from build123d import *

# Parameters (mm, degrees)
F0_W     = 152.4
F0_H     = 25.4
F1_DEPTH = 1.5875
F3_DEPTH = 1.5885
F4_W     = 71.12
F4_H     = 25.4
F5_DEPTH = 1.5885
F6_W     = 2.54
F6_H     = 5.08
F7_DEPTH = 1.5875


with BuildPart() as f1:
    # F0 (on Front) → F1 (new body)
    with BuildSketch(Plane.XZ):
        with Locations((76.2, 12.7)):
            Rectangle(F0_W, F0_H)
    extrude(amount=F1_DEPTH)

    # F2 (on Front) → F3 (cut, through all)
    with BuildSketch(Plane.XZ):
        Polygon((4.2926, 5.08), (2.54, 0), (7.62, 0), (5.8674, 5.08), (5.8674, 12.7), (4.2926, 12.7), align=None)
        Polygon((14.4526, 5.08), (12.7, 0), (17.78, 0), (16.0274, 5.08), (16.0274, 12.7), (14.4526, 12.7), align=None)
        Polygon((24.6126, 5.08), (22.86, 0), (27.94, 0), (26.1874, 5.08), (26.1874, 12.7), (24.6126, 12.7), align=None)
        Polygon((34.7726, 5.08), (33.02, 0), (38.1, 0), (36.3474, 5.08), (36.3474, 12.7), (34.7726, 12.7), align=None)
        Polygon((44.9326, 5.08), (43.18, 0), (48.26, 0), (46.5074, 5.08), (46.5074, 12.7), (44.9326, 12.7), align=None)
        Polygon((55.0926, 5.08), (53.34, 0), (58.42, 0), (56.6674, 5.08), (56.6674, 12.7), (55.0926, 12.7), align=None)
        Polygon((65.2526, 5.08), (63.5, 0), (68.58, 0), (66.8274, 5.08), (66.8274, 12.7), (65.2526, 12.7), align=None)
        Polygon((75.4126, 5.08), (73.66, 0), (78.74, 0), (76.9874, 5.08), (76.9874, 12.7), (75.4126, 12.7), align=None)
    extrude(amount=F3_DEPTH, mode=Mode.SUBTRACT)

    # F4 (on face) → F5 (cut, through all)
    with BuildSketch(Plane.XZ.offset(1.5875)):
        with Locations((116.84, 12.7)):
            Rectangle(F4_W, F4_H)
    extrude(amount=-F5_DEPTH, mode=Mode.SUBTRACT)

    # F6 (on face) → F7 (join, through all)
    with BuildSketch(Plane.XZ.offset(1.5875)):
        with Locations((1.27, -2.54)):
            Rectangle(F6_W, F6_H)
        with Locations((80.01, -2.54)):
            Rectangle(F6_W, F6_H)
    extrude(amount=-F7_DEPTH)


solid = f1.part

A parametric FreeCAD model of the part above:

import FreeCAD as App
import Part
import Sketcher
Q = App.Units.Quantity

doc = App.newDocument("Part")
params = doc.addObject("Spreadsheet::Sheet", "Params")
for row, (alias, value) in enumerate([
    ("sketch1_width", "6 in"),
    ("sketch1_height", "1 in"),
    ("pad1_length", "0.0625 in"),
    ("sketch2_width", "0.2 in"),
    ("sketch2_height", "0.3 in"),
    ("sketch2_width2", "0.062 in"),
    ("sketch3_height", "1 in"),
    ("sketch3_width", "2.8 in"),
    ("sketch4_width", "0.1 in"),
    ("sketch4_height", "0.2 in"),
    ("pad2_length", "0.0625 in"),
], start=1):
    params.set(f"A{row}", alias)
    params.set(f"B{row}", "=" + value)
    params.setAlias(f"B{row}", alias)

body = doc.addObject("PartDesign::Body", "Body")

sketch1 = body.newObject("Sketcher::SketchObject", "Sketch")
sketch1.AttachmentSupport = (doc.getObject("XZ_Plane"), [""])
sketch1.MapMode = "FlatFace"
sketch1.addGeometry([
    Part.LineSegment(App.Vector(0, 25.4, 0), App.Vector(0, 0, 0)),
    Part.LineSegment(App.Vector(0, 0, 0), App.Vector(152.4, 0, 0)),
    Part.LineSegment(App.Vector(152.4, 0, 0), App.Vector(152.4, 25.4, 0)),
    Part.LineSegment(App.Vector(152.4, 25.4, 0), App.Vector(0, 25.4, 0)),
], False)
sketch1.addConstraint([
    Sketcher.Constraint("Coincident", 0, 2, 1, 1),
    Sketcher.Constraint("Coincident", 1, 2, 2, 1),
    Sketcher.Constraint("Coincident", 2, 2, 3, 1),
    Sketcher.Constraint("Coincident", 3, 2, 0, 1),
    Sketcher.Constraint("Vertical", 0),
    Sketcher.Constraint("Horizontal", 1),
    Sketcher.Constraint("Vertical", 2),
    Sketcher.Constraint("Horizontal", 3),
    Sketcher.Constraint("Coincident", 0, 2, -1, 1),
    Sketcher.Constraint("DistanceX", 1, 1, 1, 2, Q("6 in")),
    Sketcher.Constraint("DistanceY", 0, 2, 0, 1, Q("1 in")),
])
sketch1.setExpression("Constraints[9]", "Params.sketch1_width")
sketch1.setExpression("Constraints[10]", "Params.sketch1_height")
pad1 = body.newObject("PartDesign::Pad", "Pad")
pad1.Profile = sketch1
pad1.setExpression("Length", "Params.pad1_length")

sketch2 = body.newObject("Sketcher::SketchObject", "Sketch001")
sketch2.AttachmentSupport = (doc.getObject("XZ_Plane"), [""])
sketch2.MapMode = "FlatFace"
sketch2.addGeometry([
    Part.LineSegment(App.Vector(4.2926, 5.08, 0), App.Vector(2.54, 0, 0)),
    Part.LineSegment(App.Vector(2.54, 0, 0), App.Vector(7.62, 0, 0)),
    Part.LineSegment(App.Vector(7.62, 0, 0), App.Vector(5.8674, 5.08, 0)),
    Part.LineSegment(App.Vector(5.8674, 5.08, 0), App.Vector(5.8674, 12.7, 0)),
    Part.LineSegment(App.Vector(5.8674, 12.7, 0), App.Vector(4.2926, 12.7, 0)),
    Part.LineSegment(App.Vector(4.2926, 12.7, 0), App.Vector(4.2926, 5.08, 0)),
    Part.LineSegment(App.Vector(14.4526, 5.08, 0), App.Vector(12.7, 0, 0)),
    Part.LineSegment(App.Vector(12.7, 0, 0), App.Vector(17.78, 0, 0)),
    Part.LineSegment(App.Vector(17.78, 0, 0), App.Vector(16.0274, 5.08, 0)),
    Part.LineSegment(App.Vector(16.0274, 5.08, 0), App.Vector(16.0274, 12.7, 0)),
    Part.LineSegment(App.Vector(16.0274, 12.7, 0), App.Vector(14.4526, 12.7, 0)),
    Part.LineSegment(App.Vector(14.4526, 12.7, 0), App.Vector(14.4526, 5.08, 0)),
    Part.LineSegment(App.Vector(24.6126, 5.08, 0), App.Vector(22.86, 0, 0)),
    Part.LineSegment(App.Vector(22.86, 0, 0), App.Vector(27.94, 0, 0)),
    Part.LineSegment(App.Vector(27.94, 0, 0), App.Vector(26.1874, 5.08, 0)),
    Part.LineSegment(App.Vector(26.1874, 5.08, 0), App.Vector(26.1874, 12.7, 0)),
    Part.LineSegment(App.Vector(26.1874, 12.7, 0), App.Vector(24.6126, 12.7, 0)),
    Part.LineSegment(App.Vector(24.6126, 12.7, 0), App.Vector(24.6126, 5.08, 0)),
    Part.LineSegment(App.Vector(34.7726, 5.08, 0), App.Vector(33.02, 0, 0)),
    Part.LineSegment(App.Vector(33.02, 0, 0), App.Vector(38.1, 0, 0)),
    Part.LineSegment(App.Vector(38.1, 0, 0), App.Vector(36.3474, 5.08, 0)),
    Part.LineSegment(App.Vector(36.3474, 5.08, 0), App.Vector(36.3474, 12.7, 0)),
    Part.LineSegment(App.Vector(36.3474, 12.7, 0), App.Vector(34.7726, 12.7, 0)),
    Part.LineSegment(App.Vector(34.7726, 12.7, 0), App.Vector(34.7726, 5.08, 0)),
    Part.LineSegment(App.Vector(44.9326, 5.08, 0), App.Vector(43.18, 0, 0)),
    Part.LineSegment(App.Vector(43.18, 0, 0), App.Vector(48.26, 0, 0)),
    Part.LineSegment(App.Vector(48.26, 0, 0), App.Vector(46.5074, 5.08, 0)),
    Part.LineSegment(App.Vector(46.5074, 5.08, 0), App.Vector(46.5074, 12.7, 0)),
    Part.LineSegment(App.Vector(46.5074, 12.7, 0), App.Vector(44.9326, 12.7, 0)),
    Part.LineSegment(App.Vector(44.9326, 12.7, 0), App.Vector(44.9326, 5.08, 0)),
    Part.LineSegment(App.Vector(55.0926, 5.08, 0), App.Vector(53.34, 0, 0)),
    Part.LineSegment(App.Vector(53.34, 0, 0), App.Vector(58.42, 0, 0)),
    Part.LineSegment(App.Vector(58.42, 0, 0), App.Vector(56.6674, 5.08, 0)),
    Part.LineSegment(App.Vector(56.6674, 5.08, 0), App.Vector(56.6674, 12.7, 0)),
    Part.LineSegment(App.Vector(56.6674, 12.7, 0), App.Vector(55.0926, 12.7, 0)),
    Part.LineSegment(App.Vector(55.0926, 12.7, 0), App.Vector(55.0926, 5.08, 0)),
    Part.LineSegment(App.Vector(65.2526, 5.08, 0), App.Vector(63.5, 0, 0)),
    Part.LineSegment(App.Vector(63.5, 0, 0), App.Vector(68.58, 0, 0)),
    Part.LineSegment(App.Vector(68.58, 0, 0), App.Vector(66.8274, 5.08, 0)),
    Part.LineSegment(App.Vector(66.8274, 5.08, 0), App.Vector(66.8274, 12.7, 0)),
    Part.LineSegment(App.Vector(66.8274, 12.7, 0), App.Vector(65.2526, 12.7, 0)),
    Part.LineSegment(App.Vector(65.2526, 12.7, 0), App.Vector(65.2526, 5.08, 0)),
    Part.LineSegment(App.Vector(75.4126, 5.08, 0), App.Vector(73.66, 0, 0)),
    Part.LineSegment(App.Vector(73.66, 0, 0), App.Vector(78.74, 0, 0)),
    Part.LineSegment(App.Vector(78.74, 0, 0), App.Vector(76.9874, 5.08, 0)),
    Part.LineSegment(App.Vector(76.9874, 5.08, 0), App.Vector(76.9874, 12.7, 0)),
    Part.LineSegment(App.Vector(76.9874, 12.7, 0), App.Vector(75.4126, 12.7, 0)),
    Part.LineSegment(App.Vector(75.4126, 12.7, 0), App.Vector(75.4126, 5.08, 0)),
], False)
sketch2.addConstraint([
    Sketcher.Constraint("Coincident", 0, 2, 1, 1),
    Sketcher.Constraint("Coincident", 1, 2, 2, 1),
    Sketcher.Constraint("Coincident", 2, 2, 3, 1),
    Sketcher.Constraint("Coincident", 3, 2, 4, 1),
    Sketcher.Constraint("Coincident", 4, 2, 5, 1),
    Sketcher.Constraint("Coincident", 5, 2, 0, 1),
    Sketcher.Constraint("Coincident", 6, 2, 7, 1),
    Sketcher.Constraint("Coincident", 7, 2, 8, 1),
    Sketcher.Constraint("Coincident", 8, 2, 9, 1),
    Sketcher.Constraint("Coincident", 9, 2, 10, 1),
    Sketcher.Constraint("Coincident", 10, 2, 11, 1),
    Sketcher.Constraint("Coincident", 11, 2, 6, 1),
    Sketcher.Constraint("Coincident", 12, 2, 13, 1),
    Sketcher.Constraint("Coincident", 13, 2, 14, 1),
    Sketcher.Constraint("Coincident", 14, 2, 15, 1),
    Sketcher.Constraint("Coincident", 15, 2, 16, 1),
    Sketcher.Constraint("Coincident", 16, 2, 17, 1),
    Sketcher.Constraint("Coincident", 17, 2, 12, 1),
    Sketcher.Constraint("Coincident", 18, 2, 19, 1),
    Sketcher.Constraint("Coincident", 19, 2, 20, 1),
    Sketcher.Constraint("Coincident", 20, 2, 21, 1),
    Sketcher.Constraint("Coincident", 21, 2, 22, 1),
    Sketcher.Constraint("Coincident", 22, 2, 23, 1),
    Sketcher.Constraint("Coincident", 23, 2, 18, 1),
    Sketcher.Constraint("Coincident", 24, 2, 25, 1),
    Sketcher.Constraint("Coincident", 25, 2, 26, 1),
    Sketcher.Constraint("Coincident", 26, 2, 27, 1),
    Sketcher.Constraint("Coincident", 27, 2, 28, 1),
    Sketcher.Constraint("Coincident", 28, 2, 29, 1),
    Sketcher.Constraint("Coincident", 29, 2, 24, 1),
    Sketcher.Constraint("Coincident", 30, 2, 31, 1),
    Sketcher.Constraint("Coincident", 31, 2, 32, 1),
    Sketcher.Constraint("Coincident", 32, 2, 33, 1),
    Sketcher.Constraint("Coincident", 33, 2, 34, 1),
    Sketcher.Constraint("Coincident", 34, 2, 35, 1),
    Sketcher.Constraint("Coincident", 35, 2, 30, 1),
    Sketcher.Constraint("Coincident", 36, 2, 37, 1),
    Sketcher.Constraint("Coincident", 37, 2, 38, 1),
    Sketcher.Constraint("Coincident", 38, 2, 39, 1),
    Sketcher.Constraint("Coincident", 39, 2, 40, 1),
    Sketcher.Constraint("Coincident", 40, 2, 41, 1),
    Sketcher.Constraint("Coincident", 41, 2, 36, 1),
    Sketcher.Constraint("Coincident", 42, 2, 43, 1),
    Sketcher.Constraint("Coincident", 43, 2, 44, 1),
    Sketcher.Constraint("Coincident", 44, 2, 45, 1),
    Sketcher.Constraint("Coincident", 45, 2, 46, 1),
    Sketcher.Constraint("Coincident", 46, 2, 47, 1),
    Sketcher.Constraint("Coincident", 47, 2, 42, 1),
    Sketcher.Constraint("Horizontal", 1),
    Sketcher.Constraint("Vertical", 3),
    Sketcher.Constraint("Horizontal", 4),
    Sketcher.Constraint("Vertical", 5),
    Sketcher.Constraint("Horizontal", 7),
    Sketcher.Constraint("Vertical", 9),
    Sketcher.Constraint("Horizontal", 10),
    Sketcher.Constraint("Vertical", 11),
    Sketcher.Constraint("Horizontal", 13),
    Sketcher.Constraint("Vertical", 15),
    Sketcher.Constraint("Horizontal", 16),
    Sketcher.Constraint("Vertical", 17),
    Sketcher.Constraint("Horizontal", 19),
    Sketcher.Constraint("Vertical", 21),
    Sketcher.Constraint("Horizontal", 22),
    Sketcher.Constraint("Vertical", 23),
    Sketcher.Constraint("Horizontal", 25),
    Sketcher.Constraint("Vertical", 27),
    Sketcher.Constraint("Horizontal", 28),
    Sketcher.Constraint("Vertical", 29),
    Sketcher.Constraint("Horizontal", 31),
    Sketcher.Constraint("Vertical", 33),
    Sketcher.Constraint("Horizontal", 34),
    Sketcher.Constraint("Vertical", 35),
    Sketcher.Constraint("Horizontal", 37),
    Sketcher.Constraint("Vertical", 39),
    Sketcher.Constraint("Horizontal", 40),
    Sketcher.Constraint("Vertical", 41),
    Sketcher.Constraint("Horizontal", 43),
    Sketcher.Constraint("Vertical", 45),
    Sketcher.Constraint("Horizontal", 46),
    Sketcher.Constraint("Vertical", 47),
    Sketcher.Constraint("PointOnObject", 0, 2, -1),
    Sketcher.Constraint("PointOnObject", 6, 2, -1),
    Sketcher.Constraint("PointOnObject", 12, 2, -1),
    Sketcher.Constraint("PointOnObject", 18, 2, -1),
    Sketcher.Constraint("PointOnObject", 24, 2, -1),
    Sketcher.Constraint("PointOnObject", 30, 2, -1),
    Sketcher.Constraint("PointOnObject", 36, 2, -1),
    Sketcher.Constraint("PointOnObject", 42, 2, -1),
    Sketcher.Constraint("Parallel", 0, 6),
    Sketcher.Constraint("Parallel", 2, 8),
    Sketcher.Constraint("Parallel", 6, 12),
    Sketcher.Constraint("Parallel", 8, 14),
    Sketcher.Constraint("Parallel", 12, 18),
    Sketcher.Constraint("Parallel", 14, 20),
    Sketcher.Constraint("Parallel", 18, 24),
    Sketcher.Constraint("Parallel", 20, 26),
    Sketcher.Constraint("Parallel", 24, 30),
    Sketcher.Constraint("Parallel", 26, 32),
    Sketcher.Constraint("Parallel", 30, 36),
    Sketcher.Constraint("Parallel", 32, 38),
    Sketcher.Constraint("Parallel", 36, 42),
    Sketcher.Constraint("Parallel", 38, 44),
    Sketcher.Constraint("Horizontal", 2, 2, 5, 2),
    Sketcher.Constraint("Horizontal", 5, 2, 8, 2),
    Sketcher.Constraint("Horizontal", 4, 2, 9, 2),
    Sketcher.Constraint("Horizontal", 8, 2, 11, 2),
    Sketcher.Constraint("Horizontal", 11, 2, 14, 2),
    Sketcher.Constraint("Horizontal", 10, 2, 15, 2),
    Sketcher.Constraint("Horizontal", 14, 2, 17, 2),
    Sketcher.Constraint("Horizontal", 17, 2, 20, 2),
    Sketcher.Constraint("Horizontal", 16, 2, 21, 2),
    Sketcher.Constraint("Horizontal", 20, 2, 23, 2),
    Sketcher.Constraint("Horizontal", 23, 2, 26, 2),
    Sketcher.Constraint("Horizontal", 22, 2, 27, 2),
    Sketcher.Constraint("Horizontal", 26, 2, 29, 2),
    Sketcher.Constraint("Horizontal", 29, 2, 32, 2),
    Sketcher.Constraint("Horizontal", 28, 2, 33, 2),
    Sketcher.Constraint("Horizontal", 32, 2, 35, 2),
    Sketcher.Constraint("Horizontal", 35, 2, 38, 2),
    Sketcher.Constraint("Horizontal", 34, 2, 39, 2),
    Sketcher.Constraint("Horizontal", 38, 2, 41, 2),
    Sketcher.Constraint("Horizontal", 41, 2, 44, 2),
    Sketcher.Constraint("Horizontal", 40, 2, 45, 2),
    Sketcher.Constraint("Horizontal", 44, 2, 47, 2),
    Sketcher.Constraint("Equal", 1, 7),
    Sketcher.Constraint("Equal", 7, 13),
    Sketcher.Constraint("Equal", 13, 19),
    Sketcher.Constraint("Equal", 19, 25),
    Sketcher.Constraint("Equal", 25, 31),
    Sketcher.Constraint("Equal", 31, 37),
    Sketcher.Constraint("Equal", 37, 43),
    Sketcher.Constraint("Equal", 0, 2),
    Sketcher.Constraint("DistanceX", 1, 1, 1, 2, Q("0.2 in")),
    Sketcher.Constraint("DistanceY", 3, 1, 3, 2, Q("0.3 in")),
    Sketcher.Constraint("DistanceX", -1, 1, 0, 2, Q("0.1 in")),
    Sketcher.Constraint("DistanceY", -1, 1, 2, 2, Q("0.2 in")),
    Sketcher.Constraint("DistanceX", -1, 1, 6, 2, Q("0.5 in")),
    Sketcher.Constraint("DistanceX", -1, 1, 12, 2, Q("0.9 in")),
    Sketcher.Constraint("DistanceX", -1, 1, 18, 2, Q("1.3 in")),
    Sketcher.Constraint("DistanceX", -1, 1, 24, 2, Q("1.7 in")),
    Sketcher.Constraint("DistanceX", -1, 1, 30, 2, Q("2.1 in")),
    Sketcher.Constraint("DistanceX", -1, 1, 36, 2, Q("2.5 in")),
    Sketcher.Constraint("DistanceX", -1, 1, 42, 2, Q("2.9 in")),
    Sketcher.Constraint("DistanceX", 4, 2, 4, 1, Q("0.062 in")),
])
sketch2.setExpression("Constraints[132]", "Params.sketch2_width")
sketch2.setExpression("Constraints[133]", "Params.sketch2_height")
sketch2.setExpression("Constraints[143]", "Params.sketch2_width2")
pocket1 = body.newObject("PartDesign::Pocket", "Pocket")
pocket1.Profile = sketch2
pocket1.Type = "ThroughAll"
pocket1.Reversed = True

sketch3 = body.newObject("Sketcher::SketchObject", "Sketch002")
sketch3.AttachmentSupport = (doc.getObject("XZ_Plane"), [""])
sketch3.MapMode = "FlatFace"
sketch3.AttachmentOffset = App.Placement(App.Vector(0, 0, 0.0625 * 25.4), App.Rotation())
sketch3.addGeometry([
    Part.LineSegment(App.Vector(81.28, 25.4, 0), App.Vector(81.28, 0, 0)),
    Part.LineSegment(App.Vector(81.28, 0, 0), App.Vector(152.4, 0, 0)),
    Part.LineSegment(App.Vector(152.4, 0, 0), App.Vector(152.4, 25.4, 0)),
    Part.LineSegment(App.Vector(152.4, 25.4, 0), App.Vector(81.28, 25.4, 0)),
], False)
sketch3.addConstraint([
    Sketcher.Constraint("Coincident", 0, 2, 1, 1),
    Sketcher.Constraint("Coincident", 1, 2, 2, 1),
    Sketcher.Constraint("Coincident", 2, 2, 3, 1),
    Sketcher.Constraint("Coincident", 3, 2, 0, 1),
    Sketcher.Constraint("Vertical", 0),
    Sketcher.Constraint("Horizontal", 1),
    Sketcher.Constraint("Vertical", 2),
    Sketcher.Constraint("Horizontal", 3),
    Sketcher.Constraint("PointOnObject", 0, 2, -1),
    Sketcher.Constraint("DistanceY", 0, 2, 0, 1, Q("1 in")),
    Sketcher.Constraint("DistanceX", 1, 1, 1, 2, Q("2.8 in")),
    Sketcher.Constraint("DistanceX", -1, 1, 1, 2, Q("6 in")),
])
sketch3.setExpression("Constraints[9]", "Params.sketch3_height")
sketch3.setExpression("Constraints[10]", "Params.sketch3_width")
pocket2 = body.newObject("PartDesign::Pocket", "Pocket001")
pocket2.Profile = sketch3
pocket2.Type = "ThroughAll"

sketch4 = body.newObject("Sketcher::SketchObject", "Sketch003")
sketch4.AttachmentSupport = (doc.getObject("XZ_Plane"), [""])
sketch4.MapMode = "FlatFace"
sketch4.AttachmentOffset = App.Placement(App.Vector(0, 0, 0.0625 * 25.4), App.Rotation())
sketch4.addGeometry([
    Part.LineSegment(App.Vector(0, 0, 0), App.Vector(0, -5.08, 0)),
    Part.LineSegment(App.Vector(0, -5.08, 0), App.Vector(2.54, -5.08, 0)),
    Part.LineSegment(App.Vector(2.54, -5.08, 0), App.Vector(2.54, 0, 0)),
    Part.LineSegment(App.Vector(2.54, 0, 0), App.Vector(0, 0, 0)),
    Part.LineSegment(App.Vector(78.74, 0, 0), App.Vector(78.74, -5.08, 0)),
    Part.LineSegment(App.Vector(78.74, -5.08, 0), App.Vector(81.28, -5.08, 0)),
    Part.LineSegment(App.Vector(81.28, -5.08, 0), App.Vector(81.28, 0, 0)),
    Part.LineSegment(App.Vector(81.28, 0, 0), App.Vector(78.74, 0, 0)),
], False)
sketch4.addConstraint([
    Sketcher.Constraint("Coincident", 0, 2, 1, 1),
    Sketcher.Constraint("Coincident", 1, 2, 2, 1),
    Sketcher.Constraint("Coincident", 2, 2, 3, 1),
    Sketcher.Constraint("Coincident", 3, 2, 0, 1),
    Sketcher.Constraint("Coincident", 4, 2, 5, 1),
    Sketcher.Constraint("Coincident", 5, 2, 6, 1),
    Sketcher.Constraint("Coincident", 6, 2, 7, 1),
    Sketcher.Constraint("Coincident", 7, 2, 4, 1),
    Sketcher.Constraint("Vertical", 0),
    Sketcher.Constraint("Horizontal", 1),
    Sketcher.Constraint("Vertical", 2),
    Sketcher.Constraint("Horizontal", 3),
    Sketcher.Constraint("Vertical", 4),
    Sketcher.Constraint("Horizontal", 5),
    Sketcher.Constraint("Vertical", 6),
    Sketcher.Constraint("Horizontal", 7),
    Sketcher.Constraint("Coincident", 3, 2, -1, 1),
    Sketcher.Constraint("PointOnObject", 6, 2, -1),
    Sketcher.Constraint("Horizontal", 1, 2, 4, 2),
    Sketcher.Constraint("Equal", 3, 5),
    Sketcher.Constraint("DistanceX", 1, 1, 1, 2, Q("0.1 in")),
    Sketcher.Constraint("DistanceY", 0, 2, 0, 1, Q("0.2 in")),
    Sketcher.Constraint("DistanceX", 1, 2, 4, 2, Q("3 in")),
])
sketch4.setExpression("Constraints[20]", "Params.sketch4_width")
sketch4.setExpression("Constraints[21]", "Params.sketch4_height")
pad2 = body.newObject("PartDesign::Pad", "Pad001")
pad2.Profile = sketch4
pad2.setExpression("Length", "Params.pad2_length")
pad2.Reversed = True

doc.recompute()
